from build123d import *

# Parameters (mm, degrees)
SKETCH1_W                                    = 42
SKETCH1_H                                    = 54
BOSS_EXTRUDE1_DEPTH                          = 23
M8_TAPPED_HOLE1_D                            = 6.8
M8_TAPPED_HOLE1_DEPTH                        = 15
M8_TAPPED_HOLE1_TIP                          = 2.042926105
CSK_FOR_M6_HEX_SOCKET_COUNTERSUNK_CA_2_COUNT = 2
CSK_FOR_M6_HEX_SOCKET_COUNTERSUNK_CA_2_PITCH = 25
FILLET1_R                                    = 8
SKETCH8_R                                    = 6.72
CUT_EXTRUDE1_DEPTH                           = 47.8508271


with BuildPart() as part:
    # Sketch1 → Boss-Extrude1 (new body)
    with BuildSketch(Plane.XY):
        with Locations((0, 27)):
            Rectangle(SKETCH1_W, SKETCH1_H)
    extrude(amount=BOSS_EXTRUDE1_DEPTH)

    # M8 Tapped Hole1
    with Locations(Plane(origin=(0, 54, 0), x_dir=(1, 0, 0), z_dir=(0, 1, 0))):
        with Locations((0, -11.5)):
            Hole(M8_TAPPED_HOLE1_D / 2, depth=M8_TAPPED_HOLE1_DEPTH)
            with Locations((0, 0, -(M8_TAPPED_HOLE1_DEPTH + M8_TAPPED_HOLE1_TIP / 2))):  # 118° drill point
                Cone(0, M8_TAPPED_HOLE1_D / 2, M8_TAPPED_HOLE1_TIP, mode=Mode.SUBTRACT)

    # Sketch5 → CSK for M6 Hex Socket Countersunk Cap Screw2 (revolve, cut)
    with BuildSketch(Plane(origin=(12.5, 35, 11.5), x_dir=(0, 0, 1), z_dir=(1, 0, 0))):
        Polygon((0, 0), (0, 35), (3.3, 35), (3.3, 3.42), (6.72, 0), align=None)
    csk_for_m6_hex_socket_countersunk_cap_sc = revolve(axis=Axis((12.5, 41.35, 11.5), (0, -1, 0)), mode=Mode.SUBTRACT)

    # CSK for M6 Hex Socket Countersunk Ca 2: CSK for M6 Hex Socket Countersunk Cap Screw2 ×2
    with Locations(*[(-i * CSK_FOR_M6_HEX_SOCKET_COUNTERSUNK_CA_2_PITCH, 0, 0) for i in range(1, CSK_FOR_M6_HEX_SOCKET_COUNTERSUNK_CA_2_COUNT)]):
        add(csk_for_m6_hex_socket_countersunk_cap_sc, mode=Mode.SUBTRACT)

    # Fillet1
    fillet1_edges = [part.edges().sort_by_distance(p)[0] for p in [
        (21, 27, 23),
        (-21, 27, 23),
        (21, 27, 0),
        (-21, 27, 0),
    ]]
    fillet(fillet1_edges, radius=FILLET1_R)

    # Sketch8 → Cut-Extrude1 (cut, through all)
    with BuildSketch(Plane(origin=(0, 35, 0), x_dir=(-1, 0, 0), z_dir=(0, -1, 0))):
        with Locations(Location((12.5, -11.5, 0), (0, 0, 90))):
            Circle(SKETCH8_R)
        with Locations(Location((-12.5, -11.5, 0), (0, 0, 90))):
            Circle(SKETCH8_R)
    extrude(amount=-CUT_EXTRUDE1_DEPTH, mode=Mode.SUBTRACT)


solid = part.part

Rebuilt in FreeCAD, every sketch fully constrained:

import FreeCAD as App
import Part
import Sketcher
from FreeCAD import Vector
Q = App.Units.Quantity


def edges_at(feature, points):
    """Names of the edges that pass closest to the given points."""
    edges = feature.Shape.Edges
    near = lambda p: min(range(len(edges)), key=lambda i: edges[i].distToShape(Part.Vertex(*p))[0])
    return sorted({f"Edge{near(p) + 1}" for p in points})

doc = App.newDocument("Part")
params = doc.addObject("Spreadsheet::Sheet", "Params")
for row, (alias, value) in enumerate([
    ("sketch1_width", "42 mm"),
    ("sketch1_height", "54 mm"),
    ("pad1_length", "23 mm"),
    ("sketch2_diameter", "6.8 mm"),
    ("hole_diameter", "6.8 mm"),
    ("hole_depth", "15 mm"),
    ("sketch3_width", "35 mm"),
    ("sketch3_height", "3.3 mm"),
    ("sketch3_width2", "31.58 mm"),
    ("groove_angle", "360 deg"),
    ("linearpattern_pitch", "25 mm"),
    ("fillet_radius", "8 mm"),
    ("sketch4_diameter", "13.44 mm"),
], start=1):
    params.set(f"A{row}", alias)
    params.set(f"B{row}", "=" + value)
    params.setAlias(f"B{row}", alias)

body = doc.addObject("PartDesign::Body", "Body")

# Sketch on XY plane
sketch1 = body.newObject("Sketcher::SketchObject", "Sketch")
sketch1.AttachmentSupport = (doc.getObject("XY_Plane"), [""])
sketch1.MapMode = "FlatFace"
sketch1.addGeometry([
    Part.LineSegment(Vector(-21, 54, 0), Vector(-21, 0, 0)),
    Part.LineSegment(Vector(-21, 0, 0), Vector(21, 0, 0)),
    Part.LineSegment(Vector(21, 0, 0), Vector(21, 54, 0)),
    Part.LineSegment(Vector(21, 54, 0), Vector(-21, 54, 0)),
], False)
sketch1.addConstraint([
    Sketcher.Constraint("Coincident", 0, 2, 1, 1),
    Sketcher.Constraint("Coincident", 1, 2, 2, 1),
    Sketcher.Constraint("Coincident", 2, 2, 3, 1),
    Sketcher.Constraint("Coincident", 3, 2, 0, 1),
    Sketcher.Constraint("Vertical", 0),
    Sketcher.Constraint("Horizontal", 1),
    Sketcher.Constraint("Vertical", 2),
    Sketcher.Constraint("Horizontal", 3),
    Sketcher.Constraint("Symmetric", 0, 2, 1, 2, -1, 1),
    Sketcher.Constraint("DistanceX", 1, 1, 1, 2, 42.0),
    Sketcher.Constraint("DistanceY", 0, 2, 0, 1, 54.0),
])
sketch1.setExpression("Constraints[9]", "Params.sketch1_width")
sketch1.setExpression("Constraints[10]", "Params.sketch1_height")
pad1 = body.newObject("PartDesign::Pad", "Pad")
pad1.Profile = sketch1
pad1.setExpression("Length", "Params.pad1_length")

# Sketch on XZ plane
sketch2 = body.newObject("Sketcher::SketchObject", "Sketch001")
sketch2.AttachmentSupport = (doc.getObject("XZ_Plane"), [""])
sketch2.MapMode = "FlatFace"
sketch2.AttachmentOffset = App.Placement(Vector(0, 0, -54), App.Rotation())
sketch2.addGeometry(Part.Circle(Vector(0, 11.5, 0), Vector(0, 0, 1), 3.4), False)
sketch2.addConstraint([
    Sketcher.Constraint("PointOnObject", 0, 3, -2),
    Sketcher.Constraint("Diameter", 0, 6.8),
    Sketcher.Constraint("DistanceY", -1, 1, 0, 3, 11.5),
])
sketch2.setExpression("Constraints[1]", "Params.sketch2_diameter")
doc.recompute()
hole = body.newObject("PartDesign::Hole", "Hole")
hole.Profile = sketch2
hole.ThreadType = "None"
hole.setExpression("Diameter", "Params.hole_diameter")
hole.DepthType = "Dimension"
hole.setExpression("Depth", "Params.hole_depth")
hole.DrillPoint = "Angled"
hole.DrillPointAngle = 118
hole.Reversed = True

# Sketch on YZ plane
sketch3 = body.newObject("Sketcher::SketchObject", "Sketch002")
sketch3.AttachmentSupport = (doc.getObject("YZ_Plane"), [""])
sketch3.MapMode = "FlatFace"
sketch3.AttachmentOffset = App.Placement(Vector(0, 0, 12.5), App.Rotation())
sketch3.addGeometry([
    Part.LineSegment(Vector(0, 11.5, 0), Vector(35, 11.5, 0)),  # 0
    Part.LineSegment(Vector(35, 11.5, 0), Vector(35, 18.2, 0)),  # 1
    Part.LineSegment(Vector(35, 18.2, 0), Vector(31.6, 14.8, 0)),  # 2
    Part.LineSegment(Vector(31.6, 14.8, 0), Vector(0, 14.8, 0)),  # 3
    Part.LineSegment(Vector(0, 14.8, 0), Vector(0, 11.5, 0)),  # 4
], False)
sketch3.addGeometry(Part.LineSegment(Vector(35, 11.5, 0), Vector(0, 11.5, 0)), True)  # axis
sketch3.addConstraint([
    Sketcher.Constraint("Coincident", 0, 2, 1, 1),
    Sketcher.Constraint("Coincident", 1, 2, 2, 1),
    Sketcher.Constraint("Coincident", 2, 2, 3, 1),
    Sketcher.Constraint("Coincident", 3, 2, 4, 1),
    Sketcher.Constraint("Coincident", 4, 2, 0, 1),
    Sketcher.Constraint("Horizontal", 0),
    Sketcher.Constraint("Vertical", 1),
    Sketcher.Constraint("Horizontal", 3),
    Sketcher.Constraint("Vertical", 4),
    Sketcher.Constraint("Horizontal", 5),
    Sketcher.Constraint("Coincident", 5, 1, 0, 2),
    Sketcher.Constraint("PointOnObject", 3, 2, -2),
    Sketcher.Constraint("PointOnObject", 5, 2, -2),
    Sketcher.Constraint("DistanceX", 0, 1, 0, 2, 35.0),
    Sketcher.Constraint("Angle", 2, Q("-135 deg")),
    Sketcher.Constraint("DistanceY", 4, 2, 4, 1, 3.3),
    Sketcher.Constraint("DistanceX", 3, 2, 3, 1, 31.58),
    Sketcher.Constraint("DistanceY", -1, 1, 0, 2, 11.5),
])
sketch3.setExpression("Constraints[13]", "Params.sketch3_width")
sketch3.setExpression("Constraints[15]", "Params.sketch3_height")
sketch3.setExpression("Constraints[16]", "Params.sketch3_width2")
groove = body.newObject("PartDesign::Groove", "Groove")
groove.Profile = sketch3
groove.ReferenceAxis = (sketch3, ["Axis0"])
groove.setExpression("Angle", "Params.groove_angle")
doc.recompute()

linearpattern = body.newObject("PartDesign::LinearPattern", "LinearPattern")
linearpattern.Originals = [groove]
linearpattern.Direction = (doc.getObject("X_Axis"), [""])
linearpattern.Mode = "offset"
linearpattern.setExpression("Offset", "Params.linearpattern_pitch")
linearpattern.Occurrences = 2
linearpattern.Reversed = True
body.Tip = linearpattern
doc.recompute()

fillet = body.newObject("PartDesign::Fillet", "Fillet")
fillet.Base = (linearpattern, edges_at(linearpattern, [
    (21, 27, 23),
    (-21, 27, 23),
    (21, 27, 0),
    (-21, 27, 0),
]))
fillet.setExpression("Radius", "Params.fillet_radius")

# Sketch on XZ plane
sketch4 = body.newObject("Sketcher::SketchObject", "Sketch003")
sketch4.AttachmentSupport = (doc.getObject("XZ_Plane"), [""])
sketch4.MapMode = "FlatFace"
sketch4.AttachmentOffset = App.Placement(Vector(0, 0, -35), App.Rotation())
sketch4.addGeometry([
    Part.Circle(Vector(-12, 12, 0), Vector(0, 0, 1), 7),
    Part.Circle(Vector(12, 12, 0), Vector(0, 0, 1), 7),
], False)
sketch4.addConstraint([
    Sketcher.Constraint("Equal", 0, 1),
    Sketcher.Constraint("Symmetric", 0, 3, 1, 3, -2),
    Sketcher.Constraint("Diameter", 0, 13.44),
    Sketcher.Constraint("DistanceX", 0, 3, 1, 3, 25.0),
    Sketcher.Constraint("DistanceY", -1, 1, 0, 3, 11.5),
])
sketch4.setExpression("Constraints[2]", "Params.sketch4_diameter")
pocket1 = body.newObject("PartDesign::Pocket", "Pocket")
pocket1.Profile = sketch4
pocket1.Type = "ThroughAll"

doc.recompute()
